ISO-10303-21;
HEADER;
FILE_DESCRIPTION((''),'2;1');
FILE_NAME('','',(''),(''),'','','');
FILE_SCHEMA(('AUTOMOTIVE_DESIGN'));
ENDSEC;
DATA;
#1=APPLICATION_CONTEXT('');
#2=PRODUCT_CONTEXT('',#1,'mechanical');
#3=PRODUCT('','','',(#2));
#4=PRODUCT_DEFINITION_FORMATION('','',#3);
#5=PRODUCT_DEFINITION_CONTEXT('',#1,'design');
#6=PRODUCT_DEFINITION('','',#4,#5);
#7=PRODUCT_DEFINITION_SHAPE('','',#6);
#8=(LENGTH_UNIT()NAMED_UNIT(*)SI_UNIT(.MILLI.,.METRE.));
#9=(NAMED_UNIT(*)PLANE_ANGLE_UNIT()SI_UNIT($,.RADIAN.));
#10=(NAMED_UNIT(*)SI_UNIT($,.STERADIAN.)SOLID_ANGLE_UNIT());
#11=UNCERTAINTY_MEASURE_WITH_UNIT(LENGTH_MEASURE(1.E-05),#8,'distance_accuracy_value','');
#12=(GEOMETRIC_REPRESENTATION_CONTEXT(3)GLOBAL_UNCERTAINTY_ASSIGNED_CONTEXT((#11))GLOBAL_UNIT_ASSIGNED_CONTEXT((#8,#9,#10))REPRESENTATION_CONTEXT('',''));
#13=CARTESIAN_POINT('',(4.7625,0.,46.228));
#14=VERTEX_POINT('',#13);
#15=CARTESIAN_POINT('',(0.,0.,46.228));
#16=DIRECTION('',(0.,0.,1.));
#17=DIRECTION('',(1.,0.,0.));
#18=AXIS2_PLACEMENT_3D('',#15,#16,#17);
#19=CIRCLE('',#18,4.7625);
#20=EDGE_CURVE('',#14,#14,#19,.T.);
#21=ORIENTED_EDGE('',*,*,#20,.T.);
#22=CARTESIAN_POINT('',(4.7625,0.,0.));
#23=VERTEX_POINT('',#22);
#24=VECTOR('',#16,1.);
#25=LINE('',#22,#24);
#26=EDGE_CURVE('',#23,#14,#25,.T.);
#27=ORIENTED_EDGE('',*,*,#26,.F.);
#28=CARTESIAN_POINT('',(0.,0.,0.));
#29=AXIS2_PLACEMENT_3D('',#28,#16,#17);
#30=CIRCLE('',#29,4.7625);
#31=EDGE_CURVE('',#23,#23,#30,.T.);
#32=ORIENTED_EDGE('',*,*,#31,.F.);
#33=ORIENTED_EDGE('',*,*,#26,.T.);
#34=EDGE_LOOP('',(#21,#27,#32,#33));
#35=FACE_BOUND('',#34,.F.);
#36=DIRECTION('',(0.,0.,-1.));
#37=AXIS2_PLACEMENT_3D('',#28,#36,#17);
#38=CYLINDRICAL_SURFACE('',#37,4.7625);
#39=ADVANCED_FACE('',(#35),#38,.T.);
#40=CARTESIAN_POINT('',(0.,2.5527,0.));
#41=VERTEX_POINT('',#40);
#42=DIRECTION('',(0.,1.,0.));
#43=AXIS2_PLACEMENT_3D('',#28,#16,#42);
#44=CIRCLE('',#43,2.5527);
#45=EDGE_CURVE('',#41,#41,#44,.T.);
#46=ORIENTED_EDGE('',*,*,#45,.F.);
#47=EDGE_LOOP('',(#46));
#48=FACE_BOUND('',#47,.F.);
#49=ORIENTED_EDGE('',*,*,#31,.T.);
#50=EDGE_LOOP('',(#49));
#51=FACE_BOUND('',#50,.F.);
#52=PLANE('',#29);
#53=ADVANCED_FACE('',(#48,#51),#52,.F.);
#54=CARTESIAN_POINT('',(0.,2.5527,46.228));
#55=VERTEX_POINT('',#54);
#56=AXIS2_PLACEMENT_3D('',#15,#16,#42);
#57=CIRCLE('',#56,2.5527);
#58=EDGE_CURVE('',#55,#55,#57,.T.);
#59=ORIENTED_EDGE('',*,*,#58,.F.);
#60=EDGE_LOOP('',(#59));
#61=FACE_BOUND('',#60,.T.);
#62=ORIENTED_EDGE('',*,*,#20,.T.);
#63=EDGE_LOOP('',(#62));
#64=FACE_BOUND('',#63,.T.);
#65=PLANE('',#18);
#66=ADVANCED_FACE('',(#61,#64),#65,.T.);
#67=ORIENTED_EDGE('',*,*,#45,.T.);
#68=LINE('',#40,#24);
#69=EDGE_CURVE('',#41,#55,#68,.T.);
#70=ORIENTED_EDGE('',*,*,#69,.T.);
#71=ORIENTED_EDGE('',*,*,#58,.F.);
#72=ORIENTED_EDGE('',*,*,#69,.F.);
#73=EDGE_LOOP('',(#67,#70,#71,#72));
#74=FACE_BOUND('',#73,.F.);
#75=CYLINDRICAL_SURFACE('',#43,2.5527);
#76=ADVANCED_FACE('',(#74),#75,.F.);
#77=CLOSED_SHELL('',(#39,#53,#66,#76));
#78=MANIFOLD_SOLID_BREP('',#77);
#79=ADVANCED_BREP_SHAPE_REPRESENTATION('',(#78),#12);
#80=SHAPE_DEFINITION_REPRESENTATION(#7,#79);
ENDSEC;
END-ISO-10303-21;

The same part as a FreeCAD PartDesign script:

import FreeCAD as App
import Part
import Sketcher
from FreeCAD import Vector
Q = App.Units.Quantity

doc = App.newDocument("Part")
body = doc.addObject("PartDesign::Body", "Body")

# Sketch on XY plane
sketch1 = doc.addObject("Sketcher::SketchObject", "Sketch")
body.addObject(sketch1)
sketch1.AttachmentSupport = (doc.XY_Plane, [""])
sketch1.MapMode = "FlatFace"
sketch1.addGeometry(Part.Circle(Vector(0, 0, 0), Vector(0, 0, 1), 4.8), False)
sketch1.addConstraint([
    Sketcher.Constraint("Coincident", 0, 3, -1, 1),
    Sketcher.Constraint("Diameter", 0, Q("0.375 in")),
])
pad1 = doc.addObject("PartDesign::Pad", "Pad")
body.addObject(pad1)
pad1.Profile = sketch1
pad1.Length = Q("1.82 in")

# Sketch on XY plane
sketch2 = doc.addObject("Sketcher::SketchObject", "Sketch001")
body.addObject(sketch2)
sketch2.AttachmentSupport = (doc.XY_Plane, [""])
sketch2.MapMode = "FlatFace"
sketch2.addGeometry(Part.Circle(Vector(0, 0, 0), Vector(0, 0, 1), 2.6), False)
sketch2.addConstraint([
    Sketcher.Constraint("Coincident", 0, 3, -1, 1),
    Sketcher.Constraint("Diameter", 0, Q("0.201 in")),
])
doc.recompute()
hole = doc.addObject("PartDesign::Hole", "Hole")
body.addObject(hole)
hole.Profile = sketch2
hole.ThreadType = "None"
hole.Diameter = Q("0.201 in")
hole.DepthType = "ThroughAll"
hole.Reversed = True

doc.recompute()
